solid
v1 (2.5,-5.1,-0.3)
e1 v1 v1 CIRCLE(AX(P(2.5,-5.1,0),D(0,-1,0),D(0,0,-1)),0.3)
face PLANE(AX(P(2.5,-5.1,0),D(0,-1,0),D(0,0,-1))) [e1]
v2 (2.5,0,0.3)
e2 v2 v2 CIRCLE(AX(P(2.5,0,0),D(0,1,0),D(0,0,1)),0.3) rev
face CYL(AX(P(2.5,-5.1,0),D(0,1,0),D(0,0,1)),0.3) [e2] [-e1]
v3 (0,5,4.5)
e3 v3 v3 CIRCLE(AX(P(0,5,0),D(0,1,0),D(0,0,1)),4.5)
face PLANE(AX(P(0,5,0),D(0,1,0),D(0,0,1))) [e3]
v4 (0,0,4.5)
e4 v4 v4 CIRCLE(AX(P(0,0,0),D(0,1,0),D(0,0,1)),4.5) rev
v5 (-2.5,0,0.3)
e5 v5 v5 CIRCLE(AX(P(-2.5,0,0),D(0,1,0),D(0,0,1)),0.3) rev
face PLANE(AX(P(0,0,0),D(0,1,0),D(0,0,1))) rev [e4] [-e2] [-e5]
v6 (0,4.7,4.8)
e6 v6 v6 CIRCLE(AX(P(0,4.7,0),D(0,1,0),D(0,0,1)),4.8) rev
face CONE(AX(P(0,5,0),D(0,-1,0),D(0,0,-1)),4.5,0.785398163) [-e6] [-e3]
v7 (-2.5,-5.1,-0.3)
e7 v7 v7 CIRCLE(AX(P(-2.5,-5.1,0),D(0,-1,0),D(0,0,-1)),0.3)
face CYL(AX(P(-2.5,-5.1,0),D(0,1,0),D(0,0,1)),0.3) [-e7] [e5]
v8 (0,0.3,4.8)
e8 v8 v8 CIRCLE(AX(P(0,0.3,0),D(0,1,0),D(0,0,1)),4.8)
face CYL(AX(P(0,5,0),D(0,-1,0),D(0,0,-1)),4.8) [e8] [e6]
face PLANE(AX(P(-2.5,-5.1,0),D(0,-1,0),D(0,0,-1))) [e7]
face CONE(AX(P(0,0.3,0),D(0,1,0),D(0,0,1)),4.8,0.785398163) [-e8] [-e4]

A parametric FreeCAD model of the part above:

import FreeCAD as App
import Part
import Sketcher

V = App.Vector
Q = App.Units.Quantity


def edges_at(feature, points):
    """Names of the edges that pass closest to the given points."""
    edges = feature.Shape.Edges
    near = lambda p: min(range(len(edges)), key=lambda i: edges[i].distToShape(Part.Vertex(*p))[0])
    return sorted({f"Edge{near(p) + 1}" for p in points})

doc = App.newDocument("Part")
body = doc.addObject("PartDesign::Body", "Body")

# Sketch on XZ plane
sketch1 = body.newObject("Sketcher::SketchObject", "Sketch")
sketch1.AttachmentSupport = (doc.getObject("XZ_Plane"), [""])
sketch1.MapMode = "FlatFace"
sketch1.addGeometry(Part.Circle(V(0, 0, 0), V(0, 0, 1), 4.8), False)
sketch1.addConstraint([
    Sketcher.Constraint("Coincident", 0, 3, -1, 1),
    Sketcher.Constraint("Diameter", 0, Q("9.6 mm")),
])
pad1 = body.newObject("PartDesign::Pad", "Pad")
pad1.Profile = sketch1
pad1.Length = 5
pad1.Reversed = True
doc.recompute()

chamfer = body.newObject("PartDesign::Chamfer", "Chamfer")
chamfer.Base = (pad1, edges_at(pad1, [(-4.8, 0, 0), (-4.8, 5, 0)]))
chamfer.Size = 0.3

# Sketch on XZ plane
sketch2 = body.newObject("Sketcher::SketchObject", "Sketch001")
sketch2.AttachmentSupport = (doc.getObject("XZ_Plane"), [""])
sketch2.MapMode = "FlatFace"
sketch2.addGeometry([
    Part.Circle(V(-2.5, 0, 0), V(0, 0, 1), 0.3),
    Part.Circle(V(2.5, 0, 0), V(0, 0, 1), 0.3),
], False)
sketch2.addConstraint([
    Sketcher.Constraint("Equal", 0, 1),
    Sketcher.Constraint("Symmetric", 0, 3, 1, 3, -1, 1),
    Sketcher.Constraint("PointOnObject", 0, 3, -1),
    Sketcher.Constraint("Diameter", 0, Q("0.6 mm")),
    Sketcher.Constraint("DistanceX", 0, 3, 1, 3, Q("5 mm")),
])
pad2 = body.newObject("PartDesign::Pad", "Pad001")
pad2.Profile = sketch2
pad2.Length = 5.1

doc.recompute()
